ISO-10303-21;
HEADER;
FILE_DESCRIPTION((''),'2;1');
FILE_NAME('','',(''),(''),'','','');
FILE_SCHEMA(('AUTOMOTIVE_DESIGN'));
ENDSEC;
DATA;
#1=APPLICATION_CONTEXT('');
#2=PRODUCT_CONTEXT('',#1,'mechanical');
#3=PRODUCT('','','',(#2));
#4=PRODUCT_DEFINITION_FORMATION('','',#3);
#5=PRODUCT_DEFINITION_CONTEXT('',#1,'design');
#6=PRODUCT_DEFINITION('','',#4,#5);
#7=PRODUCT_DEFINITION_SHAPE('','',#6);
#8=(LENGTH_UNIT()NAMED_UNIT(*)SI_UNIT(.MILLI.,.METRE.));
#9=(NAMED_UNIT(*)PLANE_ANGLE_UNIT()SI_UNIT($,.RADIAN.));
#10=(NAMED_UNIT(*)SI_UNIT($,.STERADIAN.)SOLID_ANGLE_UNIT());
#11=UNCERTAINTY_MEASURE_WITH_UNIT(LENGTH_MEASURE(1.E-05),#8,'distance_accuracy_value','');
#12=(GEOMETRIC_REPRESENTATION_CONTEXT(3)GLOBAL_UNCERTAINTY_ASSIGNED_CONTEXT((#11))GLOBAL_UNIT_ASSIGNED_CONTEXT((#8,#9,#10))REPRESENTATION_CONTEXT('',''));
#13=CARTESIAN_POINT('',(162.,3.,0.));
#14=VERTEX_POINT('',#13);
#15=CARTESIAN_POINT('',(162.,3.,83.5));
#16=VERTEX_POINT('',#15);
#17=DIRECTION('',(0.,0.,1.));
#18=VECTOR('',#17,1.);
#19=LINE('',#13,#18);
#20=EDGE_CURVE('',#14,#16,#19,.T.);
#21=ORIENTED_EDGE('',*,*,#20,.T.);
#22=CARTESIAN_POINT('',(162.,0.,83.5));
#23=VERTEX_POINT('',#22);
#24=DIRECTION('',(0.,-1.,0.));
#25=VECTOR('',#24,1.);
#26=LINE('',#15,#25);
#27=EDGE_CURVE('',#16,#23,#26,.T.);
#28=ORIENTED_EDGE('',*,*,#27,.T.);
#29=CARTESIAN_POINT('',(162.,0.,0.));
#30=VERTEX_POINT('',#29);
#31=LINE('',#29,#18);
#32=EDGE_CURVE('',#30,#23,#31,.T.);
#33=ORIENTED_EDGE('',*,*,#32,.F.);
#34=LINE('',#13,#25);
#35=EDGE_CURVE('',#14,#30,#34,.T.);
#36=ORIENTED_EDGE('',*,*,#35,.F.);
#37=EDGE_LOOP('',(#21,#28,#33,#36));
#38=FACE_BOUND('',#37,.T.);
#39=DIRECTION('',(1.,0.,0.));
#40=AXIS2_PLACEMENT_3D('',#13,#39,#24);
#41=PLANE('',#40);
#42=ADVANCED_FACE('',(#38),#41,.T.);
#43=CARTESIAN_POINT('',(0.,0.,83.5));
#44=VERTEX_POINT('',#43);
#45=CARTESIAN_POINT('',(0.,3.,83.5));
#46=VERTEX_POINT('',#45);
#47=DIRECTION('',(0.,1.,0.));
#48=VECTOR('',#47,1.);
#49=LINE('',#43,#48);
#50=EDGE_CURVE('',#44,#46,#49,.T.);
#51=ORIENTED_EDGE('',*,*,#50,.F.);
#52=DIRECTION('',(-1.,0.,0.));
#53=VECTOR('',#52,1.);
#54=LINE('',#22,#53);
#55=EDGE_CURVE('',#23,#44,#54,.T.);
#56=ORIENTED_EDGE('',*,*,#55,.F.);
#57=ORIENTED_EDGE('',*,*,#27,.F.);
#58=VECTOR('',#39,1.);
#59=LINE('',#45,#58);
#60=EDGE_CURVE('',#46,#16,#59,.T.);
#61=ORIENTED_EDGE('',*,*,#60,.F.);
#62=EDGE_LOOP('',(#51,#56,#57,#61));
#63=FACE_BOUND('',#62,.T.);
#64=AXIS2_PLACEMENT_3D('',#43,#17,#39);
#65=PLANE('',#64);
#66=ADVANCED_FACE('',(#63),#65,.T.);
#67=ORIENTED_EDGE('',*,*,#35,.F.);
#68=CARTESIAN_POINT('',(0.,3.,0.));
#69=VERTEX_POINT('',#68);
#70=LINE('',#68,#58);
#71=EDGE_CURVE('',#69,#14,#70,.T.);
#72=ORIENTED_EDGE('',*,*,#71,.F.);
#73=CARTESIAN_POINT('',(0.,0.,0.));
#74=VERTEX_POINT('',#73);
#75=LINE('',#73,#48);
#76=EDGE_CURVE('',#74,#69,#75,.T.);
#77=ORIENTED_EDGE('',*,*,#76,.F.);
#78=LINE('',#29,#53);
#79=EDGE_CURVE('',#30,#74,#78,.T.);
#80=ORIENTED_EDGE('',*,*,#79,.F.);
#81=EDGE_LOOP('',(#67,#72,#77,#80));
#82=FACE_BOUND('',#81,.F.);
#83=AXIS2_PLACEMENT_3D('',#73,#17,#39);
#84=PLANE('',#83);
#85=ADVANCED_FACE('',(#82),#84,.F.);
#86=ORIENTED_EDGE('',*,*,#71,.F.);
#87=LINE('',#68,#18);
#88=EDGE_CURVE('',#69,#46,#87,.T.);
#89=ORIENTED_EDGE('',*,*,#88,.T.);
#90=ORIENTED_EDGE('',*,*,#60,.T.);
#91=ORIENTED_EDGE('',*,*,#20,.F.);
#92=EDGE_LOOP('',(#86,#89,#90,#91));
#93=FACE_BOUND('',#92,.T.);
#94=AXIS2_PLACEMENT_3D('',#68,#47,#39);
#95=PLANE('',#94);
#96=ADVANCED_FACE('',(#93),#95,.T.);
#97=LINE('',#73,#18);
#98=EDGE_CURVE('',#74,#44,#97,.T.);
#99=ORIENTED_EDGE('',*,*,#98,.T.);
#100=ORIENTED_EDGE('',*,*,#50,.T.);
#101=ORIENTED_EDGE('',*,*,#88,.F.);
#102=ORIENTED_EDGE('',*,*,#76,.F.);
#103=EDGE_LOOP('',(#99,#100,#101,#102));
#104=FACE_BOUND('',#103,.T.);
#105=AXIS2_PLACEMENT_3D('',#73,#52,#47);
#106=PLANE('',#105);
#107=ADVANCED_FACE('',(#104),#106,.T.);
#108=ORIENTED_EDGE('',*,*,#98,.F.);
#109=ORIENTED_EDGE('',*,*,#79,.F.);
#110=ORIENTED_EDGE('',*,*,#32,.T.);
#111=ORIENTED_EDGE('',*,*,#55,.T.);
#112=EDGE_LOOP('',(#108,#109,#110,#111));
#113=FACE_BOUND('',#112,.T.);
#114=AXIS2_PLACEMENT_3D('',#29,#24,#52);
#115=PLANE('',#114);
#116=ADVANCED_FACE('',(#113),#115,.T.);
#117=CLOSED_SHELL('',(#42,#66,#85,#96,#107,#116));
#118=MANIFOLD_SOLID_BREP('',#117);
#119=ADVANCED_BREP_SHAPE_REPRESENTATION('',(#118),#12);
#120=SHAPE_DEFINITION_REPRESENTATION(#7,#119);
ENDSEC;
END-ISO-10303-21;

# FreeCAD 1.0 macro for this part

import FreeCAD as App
import Part
import Sketcher


def add_polygon(sketch, points):
    """Adds a closed chain of lines whose ends are joined by coincident constraints."""
    first, n = sketch.GeometryCount, len(points)
    for a, b in zip(points, points[1:] + points[:1]):
        sketch.addGeometry(Part.LineSegment(App.Vector(*a, 0), App.Vector(*b, 0)), False)
    for i in range(n):
        sketch.addConstraint(Sketcher.Constraint("Coincident", first + i, 2, first + (i + 1) % n, 1))

doc = App.newDocument("Part")
body = doc.addObject("PartDesign::Body", "Body")

# Sketch on XY plane
sketch1 = doc.addObject("Sketcher::SketchObject", "Sketch")
body.addObject(sketch1)
sketch1.AttachmentSupport = (doc.XY_Plane, [""])
sketch1.MapMode = "FlatFace"
add_polygon(sketch1, [(0, 3), (0, 0), (162, 0), (162, 3)])  # lines 0-3
sketch1.addConstraint(Sketcher.Constraint("Vertical", 0))
sketch1.addConstraint(Sketcher.Constraint("Horizontal", 1))
sketch1.addConstraint(Sketcher.Constraint("Vertical", 2))
sketch1.addConstraint(Sketcher.Constraint("Horizontal", 3))
sketch1.addConstraint(Sketcher.Constraint("Coincident", 0, 2, -1, 1))
sketch1.addConstraint(Sketcher.Constraint("DistanceX", 1, 1, 1, 2, 162.0))
sketch1.addConstraint(Sketcher.Constraint("DistanceY", 0, 2, 0, 1, 3.0))
pad1 = doc.addObject("PartDesign::Pad", "Pad")
body.addObject(pad1)
pad1.Profile = sketch1
pad1.Length = 83.5

doc.recompute()
